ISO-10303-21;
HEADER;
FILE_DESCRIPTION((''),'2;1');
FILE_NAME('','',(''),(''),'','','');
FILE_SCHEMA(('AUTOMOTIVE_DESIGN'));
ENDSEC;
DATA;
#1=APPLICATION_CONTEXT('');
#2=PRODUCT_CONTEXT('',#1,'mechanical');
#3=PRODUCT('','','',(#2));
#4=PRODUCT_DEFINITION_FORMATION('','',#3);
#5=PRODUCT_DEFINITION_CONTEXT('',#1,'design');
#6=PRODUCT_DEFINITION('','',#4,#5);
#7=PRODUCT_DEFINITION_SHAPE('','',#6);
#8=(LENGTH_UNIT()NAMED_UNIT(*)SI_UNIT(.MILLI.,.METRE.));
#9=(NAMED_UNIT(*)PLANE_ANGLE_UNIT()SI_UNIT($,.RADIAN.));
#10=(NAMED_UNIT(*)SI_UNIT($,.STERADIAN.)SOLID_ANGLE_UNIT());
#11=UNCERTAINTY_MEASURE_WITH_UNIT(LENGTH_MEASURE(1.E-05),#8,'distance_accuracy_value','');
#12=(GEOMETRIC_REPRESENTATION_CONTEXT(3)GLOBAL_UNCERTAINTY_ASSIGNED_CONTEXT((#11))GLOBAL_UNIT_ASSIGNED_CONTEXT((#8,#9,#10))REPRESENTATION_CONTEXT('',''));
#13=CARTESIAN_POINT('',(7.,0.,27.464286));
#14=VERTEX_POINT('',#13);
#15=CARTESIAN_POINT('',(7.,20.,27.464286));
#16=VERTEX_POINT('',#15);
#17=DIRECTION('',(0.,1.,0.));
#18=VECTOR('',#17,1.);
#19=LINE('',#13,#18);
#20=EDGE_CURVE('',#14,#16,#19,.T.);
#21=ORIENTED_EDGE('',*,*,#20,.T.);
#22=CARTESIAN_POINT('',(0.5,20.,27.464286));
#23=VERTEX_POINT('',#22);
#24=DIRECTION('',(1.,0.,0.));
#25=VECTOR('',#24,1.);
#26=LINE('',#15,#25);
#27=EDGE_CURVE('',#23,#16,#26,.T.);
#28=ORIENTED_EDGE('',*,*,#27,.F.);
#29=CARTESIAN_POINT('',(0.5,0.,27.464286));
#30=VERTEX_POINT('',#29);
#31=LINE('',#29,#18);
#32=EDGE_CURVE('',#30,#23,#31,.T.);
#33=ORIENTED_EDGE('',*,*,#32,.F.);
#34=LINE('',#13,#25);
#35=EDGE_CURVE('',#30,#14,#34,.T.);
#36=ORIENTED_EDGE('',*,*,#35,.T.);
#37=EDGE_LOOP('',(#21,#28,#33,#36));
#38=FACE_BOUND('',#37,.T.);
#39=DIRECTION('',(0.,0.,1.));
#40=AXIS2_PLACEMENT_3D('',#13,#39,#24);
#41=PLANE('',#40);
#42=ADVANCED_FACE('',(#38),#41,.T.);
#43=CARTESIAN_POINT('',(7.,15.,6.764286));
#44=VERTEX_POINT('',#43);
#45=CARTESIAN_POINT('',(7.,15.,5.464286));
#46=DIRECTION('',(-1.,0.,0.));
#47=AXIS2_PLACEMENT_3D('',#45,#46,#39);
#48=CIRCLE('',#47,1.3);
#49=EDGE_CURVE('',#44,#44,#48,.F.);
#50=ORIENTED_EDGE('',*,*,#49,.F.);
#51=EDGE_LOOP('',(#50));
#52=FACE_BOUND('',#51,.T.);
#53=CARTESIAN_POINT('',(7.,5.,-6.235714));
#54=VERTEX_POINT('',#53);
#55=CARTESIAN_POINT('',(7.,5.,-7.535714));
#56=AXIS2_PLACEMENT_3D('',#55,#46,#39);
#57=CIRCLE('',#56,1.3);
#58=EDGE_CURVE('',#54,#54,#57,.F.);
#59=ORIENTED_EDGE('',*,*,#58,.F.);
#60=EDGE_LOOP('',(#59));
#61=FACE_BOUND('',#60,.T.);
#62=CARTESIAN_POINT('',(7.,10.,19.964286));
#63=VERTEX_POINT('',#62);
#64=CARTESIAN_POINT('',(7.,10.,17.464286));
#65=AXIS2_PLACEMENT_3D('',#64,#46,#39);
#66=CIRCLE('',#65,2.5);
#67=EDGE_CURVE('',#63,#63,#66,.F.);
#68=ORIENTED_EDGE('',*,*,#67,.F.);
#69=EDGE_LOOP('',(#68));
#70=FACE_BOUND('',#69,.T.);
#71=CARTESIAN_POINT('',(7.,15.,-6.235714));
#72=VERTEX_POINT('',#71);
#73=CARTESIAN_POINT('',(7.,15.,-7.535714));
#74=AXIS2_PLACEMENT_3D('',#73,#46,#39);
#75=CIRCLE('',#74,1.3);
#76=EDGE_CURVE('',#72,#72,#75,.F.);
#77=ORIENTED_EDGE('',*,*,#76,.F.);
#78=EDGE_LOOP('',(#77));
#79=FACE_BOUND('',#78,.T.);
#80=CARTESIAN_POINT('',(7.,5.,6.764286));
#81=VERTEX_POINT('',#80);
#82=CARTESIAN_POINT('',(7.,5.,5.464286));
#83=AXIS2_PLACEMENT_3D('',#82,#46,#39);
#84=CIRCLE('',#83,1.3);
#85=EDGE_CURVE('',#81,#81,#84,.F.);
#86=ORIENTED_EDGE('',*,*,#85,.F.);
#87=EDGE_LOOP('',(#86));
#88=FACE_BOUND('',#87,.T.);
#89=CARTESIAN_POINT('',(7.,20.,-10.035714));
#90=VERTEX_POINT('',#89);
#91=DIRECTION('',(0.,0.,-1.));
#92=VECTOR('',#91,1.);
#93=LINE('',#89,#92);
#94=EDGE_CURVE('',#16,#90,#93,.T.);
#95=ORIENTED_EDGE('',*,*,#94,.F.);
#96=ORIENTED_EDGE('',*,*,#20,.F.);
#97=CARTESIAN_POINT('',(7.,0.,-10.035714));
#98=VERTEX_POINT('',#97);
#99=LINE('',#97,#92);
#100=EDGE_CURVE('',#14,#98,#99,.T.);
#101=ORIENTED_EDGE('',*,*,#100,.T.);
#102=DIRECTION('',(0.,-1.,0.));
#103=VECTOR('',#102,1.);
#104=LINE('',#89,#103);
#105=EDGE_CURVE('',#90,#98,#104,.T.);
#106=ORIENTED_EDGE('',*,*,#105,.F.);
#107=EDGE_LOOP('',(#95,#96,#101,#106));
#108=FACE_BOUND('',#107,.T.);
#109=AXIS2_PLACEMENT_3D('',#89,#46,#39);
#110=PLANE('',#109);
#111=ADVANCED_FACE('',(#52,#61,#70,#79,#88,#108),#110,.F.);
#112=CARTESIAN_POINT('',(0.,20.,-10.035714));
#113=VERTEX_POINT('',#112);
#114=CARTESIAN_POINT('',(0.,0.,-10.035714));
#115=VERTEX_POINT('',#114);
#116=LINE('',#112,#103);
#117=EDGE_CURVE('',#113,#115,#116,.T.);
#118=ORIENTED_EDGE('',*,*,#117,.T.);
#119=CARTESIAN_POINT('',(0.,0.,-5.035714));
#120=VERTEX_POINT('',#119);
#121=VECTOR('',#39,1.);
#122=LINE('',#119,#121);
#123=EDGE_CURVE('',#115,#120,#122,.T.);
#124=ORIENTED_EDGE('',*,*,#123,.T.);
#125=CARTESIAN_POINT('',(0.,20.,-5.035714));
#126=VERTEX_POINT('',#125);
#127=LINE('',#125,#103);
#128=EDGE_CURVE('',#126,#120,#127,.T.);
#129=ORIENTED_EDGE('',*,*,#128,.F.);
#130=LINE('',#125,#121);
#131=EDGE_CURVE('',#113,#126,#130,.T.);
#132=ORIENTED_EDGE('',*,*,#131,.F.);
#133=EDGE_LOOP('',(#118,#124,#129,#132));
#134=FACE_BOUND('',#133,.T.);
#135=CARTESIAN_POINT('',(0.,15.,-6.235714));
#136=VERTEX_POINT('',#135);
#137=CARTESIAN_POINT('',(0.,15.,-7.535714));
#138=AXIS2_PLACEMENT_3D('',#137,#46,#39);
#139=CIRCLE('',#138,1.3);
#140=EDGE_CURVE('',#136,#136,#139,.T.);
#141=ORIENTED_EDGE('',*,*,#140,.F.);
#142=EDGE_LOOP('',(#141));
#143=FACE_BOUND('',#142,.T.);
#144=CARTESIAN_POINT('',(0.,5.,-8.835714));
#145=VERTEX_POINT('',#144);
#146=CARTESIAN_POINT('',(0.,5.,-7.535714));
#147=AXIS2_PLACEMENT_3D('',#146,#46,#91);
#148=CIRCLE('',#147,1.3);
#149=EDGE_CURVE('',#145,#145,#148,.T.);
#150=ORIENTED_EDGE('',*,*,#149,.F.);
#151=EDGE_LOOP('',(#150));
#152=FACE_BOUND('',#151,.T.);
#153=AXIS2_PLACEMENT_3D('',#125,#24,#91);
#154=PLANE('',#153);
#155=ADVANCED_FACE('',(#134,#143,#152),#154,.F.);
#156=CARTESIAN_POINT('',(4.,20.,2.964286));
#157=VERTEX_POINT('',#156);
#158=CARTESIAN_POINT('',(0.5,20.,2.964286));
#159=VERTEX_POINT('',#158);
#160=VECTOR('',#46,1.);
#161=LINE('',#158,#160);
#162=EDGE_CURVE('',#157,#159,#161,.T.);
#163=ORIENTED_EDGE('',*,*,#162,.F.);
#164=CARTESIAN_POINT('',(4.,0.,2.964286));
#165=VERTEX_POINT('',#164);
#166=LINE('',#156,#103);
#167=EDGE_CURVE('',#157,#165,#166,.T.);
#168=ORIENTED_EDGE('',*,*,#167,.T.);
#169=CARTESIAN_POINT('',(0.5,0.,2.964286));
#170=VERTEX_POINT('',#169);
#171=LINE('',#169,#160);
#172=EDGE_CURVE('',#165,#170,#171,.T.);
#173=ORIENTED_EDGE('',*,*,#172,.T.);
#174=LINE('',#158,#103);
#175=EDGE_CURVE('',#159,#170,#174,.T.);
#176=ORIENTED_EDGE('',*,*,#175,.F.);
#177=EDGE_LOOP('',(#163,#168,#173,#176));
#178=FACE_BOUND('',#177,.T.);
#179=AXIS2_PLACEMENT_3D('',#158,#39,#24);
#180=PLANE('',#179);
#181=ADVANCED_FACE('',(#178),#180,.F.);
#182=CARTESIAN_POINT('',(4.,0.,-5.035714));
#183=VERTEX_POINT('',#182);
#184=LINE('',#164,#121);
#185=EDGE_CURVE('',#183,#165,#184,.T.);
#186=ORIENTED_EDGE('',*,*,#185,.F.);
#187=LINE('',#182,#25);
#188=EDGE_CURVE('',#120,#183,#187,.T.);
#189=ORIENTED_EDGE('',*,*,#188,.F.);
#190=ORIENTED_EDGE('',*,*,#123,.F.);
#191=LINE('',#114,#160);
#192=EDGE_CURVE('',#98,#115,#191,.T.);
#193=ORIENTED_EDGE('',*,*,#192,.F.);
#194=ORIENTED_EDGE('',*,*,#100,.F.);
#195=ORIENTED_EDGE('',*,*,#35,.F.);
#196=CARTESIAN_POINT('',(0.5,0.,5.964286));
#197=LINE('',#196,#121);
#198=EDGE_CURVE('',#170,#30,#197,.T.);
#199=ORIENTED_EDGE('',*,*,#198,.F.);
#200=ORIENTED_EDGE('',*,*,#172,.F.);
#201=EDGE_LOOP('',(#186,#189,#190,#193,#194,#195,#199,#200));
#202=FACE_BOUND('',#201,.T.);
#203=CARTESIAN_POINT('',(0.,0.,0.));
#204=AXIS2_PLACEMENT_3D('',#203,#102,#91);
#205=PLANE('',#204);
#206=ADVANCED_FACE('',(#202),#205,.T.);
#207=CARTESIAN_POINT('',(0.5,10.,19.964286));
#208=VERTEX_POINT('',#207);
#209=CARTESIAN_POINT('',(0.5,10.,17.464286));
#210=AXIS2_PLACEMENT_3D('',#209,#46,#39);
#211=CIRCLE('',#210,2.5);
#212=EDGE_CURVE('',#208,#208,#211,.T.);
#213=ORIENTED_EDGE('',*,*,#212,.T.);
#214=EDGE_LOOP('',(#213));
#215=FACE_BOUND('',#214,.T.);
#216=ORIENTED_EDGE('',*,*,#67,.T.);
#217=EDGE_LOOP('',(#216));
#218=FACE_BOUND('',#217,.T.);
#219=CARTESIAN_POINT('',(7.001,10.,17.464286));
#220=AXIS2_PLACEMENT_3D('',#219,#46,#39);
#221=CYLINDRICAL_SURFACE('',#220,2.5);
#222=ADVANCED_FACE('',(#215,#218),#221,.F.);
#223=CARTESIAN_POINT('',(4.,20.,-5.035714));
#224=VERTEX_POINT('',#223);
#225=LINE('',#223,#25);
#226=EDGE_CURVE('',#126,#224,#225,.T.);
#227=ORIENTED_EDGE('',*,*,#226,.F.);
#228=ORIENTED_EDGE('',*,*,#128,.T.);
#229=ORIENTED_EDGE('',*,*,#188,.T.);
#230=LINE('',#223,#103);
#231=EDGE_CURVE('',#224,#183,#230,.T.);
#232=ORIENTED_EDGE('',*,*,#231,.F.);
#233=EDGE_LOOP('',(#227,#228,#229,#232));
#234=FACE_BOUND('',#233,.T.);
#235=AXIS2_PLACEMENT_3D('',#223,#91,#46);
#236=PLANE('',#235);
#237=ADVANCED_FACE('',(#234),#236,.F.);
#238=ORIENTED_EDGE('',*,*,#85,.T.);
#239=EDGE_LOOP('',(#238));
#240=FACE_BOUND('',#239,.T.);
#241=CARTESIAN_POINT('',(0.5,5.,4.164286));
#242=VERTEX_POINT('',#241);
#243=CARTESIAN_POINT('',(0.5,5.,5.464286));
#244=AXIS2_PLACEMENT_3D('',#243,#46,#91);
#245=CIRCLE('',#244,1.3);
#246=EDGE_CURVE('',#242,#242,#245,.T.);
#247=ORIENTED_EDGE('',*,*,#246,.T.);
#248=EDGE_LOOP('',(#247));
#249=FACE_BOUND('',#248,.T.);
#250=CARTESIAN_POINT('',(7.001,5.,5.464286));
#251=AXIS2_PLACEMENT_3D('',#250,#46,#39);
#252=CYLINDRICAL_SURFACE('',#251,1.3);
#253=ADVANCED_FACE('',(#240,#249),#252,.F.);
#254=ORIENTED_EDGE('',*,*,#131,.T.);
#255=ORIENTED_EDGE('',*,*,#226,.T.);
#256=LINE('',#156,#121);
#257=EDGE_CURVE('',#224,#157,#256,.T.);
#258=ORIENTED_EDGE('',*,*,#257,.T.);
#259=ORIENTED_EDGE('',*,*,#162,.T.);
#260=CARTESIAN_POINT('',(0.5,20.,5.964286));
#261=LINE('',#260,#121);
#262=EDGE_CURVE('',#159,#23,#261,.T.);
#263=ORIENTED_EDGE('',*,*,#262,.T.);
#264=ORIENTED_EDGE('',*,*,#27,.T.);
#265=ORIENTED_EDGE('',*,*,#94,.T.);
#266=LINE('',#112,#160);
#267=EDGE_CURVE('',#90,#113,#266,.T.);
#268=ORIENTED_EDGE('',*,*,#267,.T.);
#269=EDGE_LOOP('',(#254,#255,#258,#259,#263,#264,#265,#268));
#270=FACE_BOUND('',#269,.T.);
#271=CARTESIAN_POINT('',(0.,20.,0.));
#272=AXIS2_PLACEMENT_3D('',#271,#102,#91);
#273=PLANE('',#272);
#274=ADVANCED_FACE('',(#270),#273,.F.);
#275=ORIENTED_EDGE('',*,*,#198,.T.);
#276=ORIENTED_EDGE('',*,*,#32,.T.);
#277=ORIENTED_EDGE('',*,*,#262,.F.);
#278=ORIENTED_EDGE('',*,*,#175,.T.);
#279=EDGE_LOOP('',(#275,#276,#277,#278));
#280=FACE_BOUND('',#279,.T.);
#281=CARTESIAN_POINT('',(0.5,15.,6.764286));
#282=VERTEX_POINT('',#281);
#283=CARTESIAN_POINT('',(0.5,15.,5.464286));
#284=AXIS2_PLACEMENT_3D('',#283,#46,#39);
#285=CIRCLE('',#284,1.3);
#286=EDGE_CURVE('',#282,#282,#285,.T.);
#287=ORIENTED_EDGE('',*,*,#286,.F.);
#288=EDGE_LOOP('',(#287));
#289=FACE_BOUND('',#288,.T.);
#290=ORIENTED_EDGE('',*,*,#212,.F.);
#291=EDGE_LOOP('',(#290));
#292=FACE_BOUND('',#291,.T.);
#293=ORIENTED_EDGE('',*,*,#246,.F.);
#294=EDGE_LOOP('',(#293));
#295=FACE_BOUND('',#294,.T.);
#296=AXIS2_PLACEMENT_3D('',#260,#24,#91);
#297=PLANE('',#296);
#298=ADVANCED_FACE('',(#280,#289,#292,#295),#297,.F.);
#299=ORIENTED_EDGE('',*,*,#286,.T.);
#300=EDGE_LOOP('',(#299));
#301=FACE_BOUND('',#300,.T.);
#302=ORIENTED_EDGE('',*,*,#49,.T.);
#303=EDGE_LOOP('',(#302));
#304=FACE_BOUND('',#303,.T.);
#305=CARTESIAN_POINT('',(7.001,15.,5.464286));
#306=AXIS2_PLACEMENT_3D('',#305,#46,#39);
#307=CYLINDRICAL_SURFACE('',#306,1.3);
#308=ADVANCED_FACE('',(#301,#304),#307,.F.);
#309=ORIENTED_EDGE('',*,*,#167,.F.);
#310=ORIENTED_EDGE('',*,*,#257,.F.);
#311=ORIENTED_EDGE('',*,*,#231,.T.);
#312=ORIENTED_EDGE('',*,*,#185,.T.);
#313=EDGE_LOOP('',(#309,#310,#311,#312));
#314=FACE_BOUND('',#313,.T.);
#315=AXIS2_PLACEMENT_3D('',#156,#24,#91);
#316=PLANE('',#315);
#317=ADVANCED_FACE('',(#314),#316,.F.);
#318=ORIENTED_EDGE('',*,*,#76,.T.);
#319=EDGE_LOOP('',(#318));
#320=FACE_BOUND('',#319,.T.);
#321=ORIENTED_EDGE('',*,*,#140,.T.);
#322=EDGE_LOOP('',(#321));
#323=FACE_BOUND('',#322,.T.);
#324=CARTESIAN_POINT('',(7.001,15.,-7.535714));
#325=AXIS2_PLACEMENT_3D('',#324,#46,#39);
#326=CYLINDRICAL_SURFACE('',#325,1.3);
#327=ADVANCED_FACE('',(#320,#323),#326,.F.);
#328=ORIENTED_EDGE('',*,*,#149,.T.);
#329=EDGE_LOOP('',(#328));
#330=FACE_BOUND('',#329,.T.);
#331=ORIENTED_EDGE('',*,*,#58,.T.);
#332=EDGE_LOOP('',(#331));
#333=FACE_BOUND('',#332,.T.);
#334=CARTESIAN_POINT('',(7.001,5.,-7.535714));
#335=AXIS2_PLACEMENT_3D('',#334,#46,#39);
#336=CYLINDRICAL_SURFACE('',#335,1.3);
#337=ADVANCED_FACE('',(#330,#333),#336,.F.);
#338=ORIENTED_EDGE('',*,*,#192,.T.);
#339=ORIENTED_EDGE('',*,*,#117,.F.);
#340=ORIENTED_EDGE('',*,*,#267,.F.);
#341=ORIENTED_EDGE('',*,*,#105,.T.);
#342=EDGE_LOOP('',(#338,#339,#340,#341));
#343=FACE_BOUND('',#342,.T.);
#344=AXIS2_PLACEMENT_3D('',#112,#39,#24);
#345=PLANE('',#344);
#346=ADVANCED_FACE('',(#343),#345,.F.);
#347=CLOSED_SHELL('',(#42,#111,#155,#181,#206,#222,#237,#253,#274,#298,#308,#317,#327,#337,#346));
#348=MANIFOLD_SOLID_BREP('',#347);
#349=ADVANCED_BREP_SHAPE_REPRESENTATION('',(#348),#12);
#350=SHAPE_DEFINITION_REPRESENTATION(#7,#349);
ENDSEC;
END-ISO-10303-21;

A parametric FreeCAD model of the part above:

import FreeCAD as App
import Part
import Sketcher

V = App.Vector
Q = App.Units.Quantity

doc = App.newDocument("Part")
body = doc.addObject("PartDesign::Body", "Body")

# Sketch on XZ plane
sketch1 = body.newObject("Sketcher::SketchObject", "Sketch")
sketch1.AttachmentSupport = (doc.getObject("XZ_Plane"), [""])
sketch1.MapMode = "FlatFace"
sketch1.addGeometry(Part.LineSegment(V(0, -10, 0), V(0, -5, 0)), False)
sketch1.addGeometry(Part.LineSegment(V(0, -5, 0), V(4, -5, 0)), False)
sketch1.addGeometry(Part.LineSegment(V(4, -5, 0), V(4, 3, 0)), False)
sketch1.addGeometry(Part.LineSegment(V(4, 3, 0), V(0.5, 3, 0)), False)
sketch1.addGeometry(Part.LineSegment(V(0.5, 3, 0), V(0.5, 6, 0)), False)
sketch1.addGeometry(Part.LineSegment(V(0.5, 6, 0), V(7, 6, 0)), False)
sketch1.addGeometry(Part.LineSegment(V(7, 6, 0), V(7, -10, 0)), False)
sketch1.addGeometry(Part.LineSegment(V(7, -10, 0), V(0, -10, 0)), False)
sketch1.addConstraint(Sketcher.Constraint("Coincident", 0, 2, 1, 1))
sketch1.addConstraint(Sketcher.Constraint("Coincident", 1, 2, 2, 1))
sketch1.addConstraint(Sketcher.Constraint("Coincident", 2, 2, 3, 1))
sketch1.addConstraint(Sketcher.Constraint("Coincident", 3, 2, 4, 1))
sketch1.addConstraint(Sketcher.Constraint("Coincident", 4, 2, 5, 1))
sketch1.addConstraint(Sketcher.Constraint("Coincident", 5, 2, 6, 1))
sketch1.addConstraint(Sketcher.Constraint("Coincident", 6, 2, 7, 1))
sketch1.addConstraint(Sketcher.Constraint("Coincident", 7, 2, 0, 1))
sketch1.addConstraint(Sketcher.Constraint("Vertical", 0))
sketch1.addConstraint(Sketcher.Constraint("Horizontal", 1))
sketch1.addConstraint(Sketcher.Constraint("Vertical", 2))
sketch1.addConstraint(Sketcher.Constraint("Horizontal", 3))
sketch1.addConstraint(Sketcher.Constraint("Vertical", 4))
sketch1.addConstraint(Sketcher.Constraint("Horizontal", 5))
sketch1.addConstraint(Sketcher.Constraint("Vertical", 6))
sketch1.addConstraint(Sketcher.Constraint("Horizontal", 7))
sketch1.addConstraint(Sketcher.Constraint("PointOnObject", 0, 2, -2))
sketch1.addConstraint(Sketcher.Constraint("DistanceX", 1, 1, 1, 2, Q("4 mm")))
sketch1.addConstraint(Sketcher.Constraint("DistanceX", 7, 2, 7, 1, Q("7 mm")))
sketch1.addConstraint(Sketcher.Constraint("DistanceY", 0, 1, 0, 2, Q("5 mm")))
sketch1.addConstraint(Sketcher.Constraint("DistanceY", 2, 1, 2, 2, Q("8 mm")))
sketch1.addConstraint(Sketcher.Constraint("DistanceY", 4, 1, 4, 2, Q("3 mm")))
sketch1.addConstraint(Sketcher.Constraint("DistanceX", 3, 2, 3, 1, Q("3.5 mm")))
sketch1.addConstraint(Sketcher.Constraint("DistanceY", 0, 2, -1, 1, Q("5.035714 mm")))
pad1 = body.newObject("PartDesign::Pad", "Pad")
pad1.Profile = sketch1
pad1.Length = 20
pad1.Reversed = True

# Sketch on YZ plane
sketch2 = body.newObject("Sketcher::SketchObject", "Sketch001")
sketch2.AttachmentSupport = (doc.getObject("YZ_Plane"), [""])
sketch2.MapMode = "FlatFace"
sketch2.addGeometry(Part.Circle(V(15, -7.5, 0), V(0, 0, 1), 1.3), False)
sketch2.addConstraint(Sketcher.Constraint("Diameter", 0, Q("2.6 mm")))
sketch2.addConstraint(Sketcher.Constraint("DistanceX", -1, 1, 0, 3, Q("15 mm")))
sketch2.addConstraint(Sketcher.Constraint("DistanceY", 0, 3, -1, 1, Q("7.535714 mm")))
pocket1 = body.newObject("PartDesign::Pocket", "Pocket")
pocket1.Profile = sketch2
pocket1.Type = "UpToFirst"
pocket1.Reversed = True

# Sketch on YZ plane
sketch3 = body.newObject("Sketcher::SketchObject", "Sketch002")
sketch3.AttachmentSupport = (doc.getObject("YZ_Plane"), [""])
sketch3.MapMode = "FlatFace"
sketch3.addGeometry(Part.Circle(V(5, -7.5, 0), V(0, 0, 1), 1.3), False)
sketch3.addConstraint(Sketcher.Constraint("Diameter", 0, Q("2.6 mm")))
sketch3.addConstraint(Sketcher.Constraint("DistanceX", -1, 1, 0, 3, Q("5 mm")))
sketch3.addConstraint(Sketcher.Constraint("DistanceY", 0, 3, -1, 1, Q("7.535714 mm")))
pocket2 = body.newObject("PartDesign::Pocket", "Pocket001")
pocket2.Profile = sketch3
pocket2.Type = "UpToFirst"
pocket2.Reversed = True

# Sketch on XZ plane
sketch4 = body.newObject("Sketcher::SketchObject", "Sketch003")
sketch4.AttachmentSupport = (doc.getObject("XZ_Plane"), [""])
sketch4.MapMode = "FlatFace"
sketch4.AttachmentOffset = App.Placement(V(0, 0, -20), App.Rotation())
sketch4.addGeometry(Part.LineSegment(V(7, 27, 0), V(7, 6, 0)), False)
sketch4.addGeometry(Part.LineSegment(V(7, 6, 0), V(0, 6, 0)), False)
sketch4.addGeometry(Part.LineSegment(V(0, 6, 0), V(0, 27, 0)), False)
sketch4.addGeometry(Part.LineSegment(V(0, 27, 0), V(7, 27, 0)), False)
sketch4.addConstraint(Sketcher.Constraint("Coincident", 0, 2, 1, 1))
sketch4.addConstraint(Sketcher.Constraint("Coincident", 1, 2, 2, 1))
sketch4.addConstraint(Sketcher.Constraint("Coincident", 2, 2, 3, 1))
sketch4.addConstraint(Sketcher.Constraint("Coincident", 3, 2, 0, 1))
sketch4.addConstraint(Sketcher.Constraint("Vertical", 0))
sketch4.addConstraint(Sketcher.Constraint("Horizontal", 1))
sketch4.addConstraint(Sketcher.Constraint("Vertical", 2))
sketch4.addConstraint(Sketcher.Constraint("Horizontal", 3))
sketch4.addConstraint(Sketcher.Constraint("DistanceX", 1, 2, 1, 1, Q("6.5 mm")))
sketch4.addConstraint(Sketcher.Constraint("DistanceY", 0, 2, 0, 1, Q("21.5 mm")))
sketch4.addConstraint(Sketcher.Constraint("DistanceX", -1, 1, 0, 2, Q("7 mm")))
sketch4.addConstraint(Sketcher.Constraint("DistanceY", -1, 1, 0, 2, Q("5.964286 mm")))
pad2 = body.newObject("PartDesign::Pad", "Pad001")
pad2.Profile = sketch4
pad2.Length = 20

# Sketch on YZ plane
sketch5 = body.newObject("Sketcher::SketchObject", "Sketch004")
sketch5.AttachmentSupport = (doc.getObject("YZ_Plane"), [""])
sketch5.MapMode = "FlatFace"
sketch5.AttachmentOffset = App.Placement(V(0, 0, 0.5), App.Rotation())
sketch5.addGeometry(Part.Circle(V(15, 5.5, 0), V(0, 0, 1), 1.3), False)
sketch5.addConstraint(Sketcher.Constraint("Diameter", 0, Q("2.6 mm")))
sketch5.addConstraint(Sketcher.Constraint("DistanceX", -1, 1, 0, 3, Q("15 mm")))
sketch5.addConstraint(Sketcher.Constraint("DistanceY", -1, 1, 0, 3, Q("5.464286 mm")))
pocket3 = body.newObject("PartDesign::Pocket", "Pocket002")
pocket3.Profile = sketch5
pocket3.Type = "UpToFirst"
pocket3.Reversed = True

# Sketch on YZ plane
sketch6 = body.newObject("Sketcher::SketchObject", "Sketch005")
sketch6.AttachmentSupport = (doc.getObject("YZ_Plane"), [""])
sketch6.MapMode = "FlatFace"
sketch6.AttachmentOffset = App.Placement(V(0, 0, 0.5), App.Rotation())
sketch6.addGeometry(Part.Circle(V(5, 5.5, 0), V(0, 0, 1), 1.3), False)
sketch6.addConstraint(Sketcher.Constraint("Diameter", 0, Q("2.6 mm")))
sketch6.addConstraint(Sketcher.Constraint("DistanceX", -1, 1, 0, 3, Q("5 mm")))
sketch6.addConstraint(Sketcher.Constraint("DistanceY", -1, 1, 0, 3, Q("5.464286 mm")))
pocket4 = body.newObject("PartDesign::Pocket", "Pocket003")
pocket4.Profile = sketch6
pocket4.Type = "UpToFirst"
pocket4.Reversed = True

# Sketch on YZ plane
sketch7 = body.newObject("Sketcher::SketchObject", "Sketch006")
sketch7.AttachmentSupport = (doc.getObject("YZ_Plane"), [""])
sketch7.MapMode = "FlatFace"
sketch7.AttachmentOffset = App.Placement(V(0, 0, 0.5), App.Rotation())
sketch7.addGeometry(Part.Circle(V(10, 17.5, 0), V(0, 0, 1), 2.5), False)
sketch7.addConstraint(Sketcher.Constraint("Diameter", 0, Q("5 mm")))
sketch7.addConstraint(Sketcher.Constraint("DistanceX", -1, 1, 0, 3, Q("10 mm")))
sketch7.addConstraint(Sketcher.Constraint("DistanceY", -1, 1, 0, 3, Q("17.464286 mm")))
pocket5 = body.newObject("PartDesign::Pocket", "Pocket004")
pocket5.Profile = sketch7
pocket5.Type = "UpToFirst"
pocket5.Reversed = True

doc.recompute()
